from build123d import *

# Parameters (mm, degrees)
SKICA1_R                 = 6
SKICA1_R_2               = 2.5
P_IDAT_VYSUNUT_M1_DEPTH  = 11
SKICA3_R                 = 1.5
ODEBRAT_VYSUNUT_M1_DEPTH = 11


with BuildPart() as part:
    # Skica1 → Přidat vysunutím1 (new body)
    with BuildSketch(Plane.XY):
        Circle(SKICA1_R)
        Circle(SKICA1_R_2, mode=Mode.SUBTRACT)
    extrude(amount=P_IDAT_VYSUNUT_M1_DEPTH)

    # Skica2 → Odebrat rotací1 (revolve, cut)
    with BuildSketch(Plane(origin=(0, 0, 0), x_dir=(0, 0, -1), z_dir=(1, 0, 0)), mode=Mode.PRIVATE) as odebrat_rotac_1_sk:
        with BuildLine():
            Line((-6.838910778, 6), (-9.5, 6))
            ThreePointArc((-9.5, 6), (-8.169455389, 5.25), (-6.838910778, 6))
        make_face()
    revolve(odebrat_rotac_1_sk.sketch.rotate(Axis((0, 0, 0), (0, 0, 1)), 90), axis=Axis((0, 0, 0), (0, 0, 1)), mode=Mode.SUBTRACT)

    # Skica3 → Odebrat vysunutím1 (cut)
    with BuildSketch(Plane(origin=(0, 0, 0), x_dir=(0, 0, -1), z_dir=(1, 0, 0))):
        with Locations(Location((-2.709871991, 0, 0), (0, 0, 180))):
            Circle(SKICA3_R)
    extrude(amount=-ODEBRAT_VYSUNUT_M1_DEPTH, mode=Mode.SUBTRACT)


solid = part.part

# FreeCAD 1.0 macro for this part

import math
import FreeCAD as App
import Part
import Sketcher

V = App.Vector

doc = App.newDocument("Part")
body = doc.addObject("PartDesign::Body", "Body")

# Sketch on XY plane
sketch1 = body.newObject("Sketcher::SketchObject", "Sketch")
sketch1.AttachmentSupport = (doc.getObject("XY_Plane"), [""])
sketch1.MapMode = "FlatFace"
sketch1.addGeometry(Part.Circle(V(0, 0, 0), V(0, 0, 1), 6), False)
sketch1.addGeometry(Part.Circle(V(0, 0, 0), V(0, 0, 1), 2.5), False)
sketch1.addConstraint(Sketcher.Constraint("Coincident", 0, 3, -1, 1))
sketch1.addConstraint(Sketcher.Constraint("Coincident", 1, 3, -1, 1))
sketch1.addConstraint(Sketcher.Constraint("Diameter", 0, 12.0))
sketch1.addConstraint(Sketcher.Constraint("Diameter", 1, 5.0))
pad1 = body.newObject("PartDesign::Pad", "Pad")
pad1.Profile = sketch1
pad1.Length = 11

# Sketch on YZ plane
sketch2 = body.newObject("Sketcher::SketchObject", "Sketch001")
sketch2.AttachmentSupport = (doc.getObject("YZ_Plane"), [""])
sketch2.MapMode = "FlatFace"
sketch2.addGeometry(Part.LineSegment(V(6, 6.8, 0), V(6, 9.5, 0)), False)
sketch2.addGeometry(Part.ArcOfCircle(Part.Circle(V(6.8, 8.2, 0), V(0, 0, 1), 1.6), math.radians(121), math.radians(239)), False)
sketch2.addConstraint(Sketcher.Constraint("Coincident", 0, 1, 1, 2))
sketch2.addConstraint(Sketcher.Constraint("Coincident", 1, 1, 0, 2))
sketch2.addConstraint(Sketcher.Constraint("Vertical", 0))
sketch2.addConstraint(Sketcher.Constraint("DistanceX", -1, 1, 0, 1, 6.0))
sketch2.addConstraint(Sketcher.Constraint("DistanceY", -1, 1, 1, 1, 9.5))
sketch2.addConstraint(Sketcher.Constraint("Radius", 1, 1.555233))
sketch2.addConstraint(Sketcher.Constraint("DistanceY", 0, 1, 0, 2, 2.661089))
groove = body.newObject("PartDesign::Groove", "Groove")
groove.Profile = sketch2
groove.ReferenceAxis = (sketch2, ["V_Axis"])
groove.Angle = 360

# Sketch on YZ plane
sketch3 = body.newObject("Sketcher::SketchObject", "Sketch002")
sketch3.AttachmentSupport = (doc.getObject("YZ_Plane"), [""])
sketch3.MapMode = "FlatFace"
sketch3.addGeometry(Part.Circle(V(0, 2.7, 0), V(0, 0, 1), 1.5), False)
sketch3.addConstraint(Sketcher.Constraint("PointOnObject", 0, 3, -2))
sketch3.addConstraint(Sketcher.Constraint("Diameter", 0, 3.0))
sketch3.addConstraint(Sketcher.Constraint("DistanceY", -1, 1, 0, 3, 2.709872))
pocket1 = body.newObject("PartDesign::Pocket", "Pocket")
pocket1.Profile = sketch3
pocket1.Length = 11

doc.recompute()
